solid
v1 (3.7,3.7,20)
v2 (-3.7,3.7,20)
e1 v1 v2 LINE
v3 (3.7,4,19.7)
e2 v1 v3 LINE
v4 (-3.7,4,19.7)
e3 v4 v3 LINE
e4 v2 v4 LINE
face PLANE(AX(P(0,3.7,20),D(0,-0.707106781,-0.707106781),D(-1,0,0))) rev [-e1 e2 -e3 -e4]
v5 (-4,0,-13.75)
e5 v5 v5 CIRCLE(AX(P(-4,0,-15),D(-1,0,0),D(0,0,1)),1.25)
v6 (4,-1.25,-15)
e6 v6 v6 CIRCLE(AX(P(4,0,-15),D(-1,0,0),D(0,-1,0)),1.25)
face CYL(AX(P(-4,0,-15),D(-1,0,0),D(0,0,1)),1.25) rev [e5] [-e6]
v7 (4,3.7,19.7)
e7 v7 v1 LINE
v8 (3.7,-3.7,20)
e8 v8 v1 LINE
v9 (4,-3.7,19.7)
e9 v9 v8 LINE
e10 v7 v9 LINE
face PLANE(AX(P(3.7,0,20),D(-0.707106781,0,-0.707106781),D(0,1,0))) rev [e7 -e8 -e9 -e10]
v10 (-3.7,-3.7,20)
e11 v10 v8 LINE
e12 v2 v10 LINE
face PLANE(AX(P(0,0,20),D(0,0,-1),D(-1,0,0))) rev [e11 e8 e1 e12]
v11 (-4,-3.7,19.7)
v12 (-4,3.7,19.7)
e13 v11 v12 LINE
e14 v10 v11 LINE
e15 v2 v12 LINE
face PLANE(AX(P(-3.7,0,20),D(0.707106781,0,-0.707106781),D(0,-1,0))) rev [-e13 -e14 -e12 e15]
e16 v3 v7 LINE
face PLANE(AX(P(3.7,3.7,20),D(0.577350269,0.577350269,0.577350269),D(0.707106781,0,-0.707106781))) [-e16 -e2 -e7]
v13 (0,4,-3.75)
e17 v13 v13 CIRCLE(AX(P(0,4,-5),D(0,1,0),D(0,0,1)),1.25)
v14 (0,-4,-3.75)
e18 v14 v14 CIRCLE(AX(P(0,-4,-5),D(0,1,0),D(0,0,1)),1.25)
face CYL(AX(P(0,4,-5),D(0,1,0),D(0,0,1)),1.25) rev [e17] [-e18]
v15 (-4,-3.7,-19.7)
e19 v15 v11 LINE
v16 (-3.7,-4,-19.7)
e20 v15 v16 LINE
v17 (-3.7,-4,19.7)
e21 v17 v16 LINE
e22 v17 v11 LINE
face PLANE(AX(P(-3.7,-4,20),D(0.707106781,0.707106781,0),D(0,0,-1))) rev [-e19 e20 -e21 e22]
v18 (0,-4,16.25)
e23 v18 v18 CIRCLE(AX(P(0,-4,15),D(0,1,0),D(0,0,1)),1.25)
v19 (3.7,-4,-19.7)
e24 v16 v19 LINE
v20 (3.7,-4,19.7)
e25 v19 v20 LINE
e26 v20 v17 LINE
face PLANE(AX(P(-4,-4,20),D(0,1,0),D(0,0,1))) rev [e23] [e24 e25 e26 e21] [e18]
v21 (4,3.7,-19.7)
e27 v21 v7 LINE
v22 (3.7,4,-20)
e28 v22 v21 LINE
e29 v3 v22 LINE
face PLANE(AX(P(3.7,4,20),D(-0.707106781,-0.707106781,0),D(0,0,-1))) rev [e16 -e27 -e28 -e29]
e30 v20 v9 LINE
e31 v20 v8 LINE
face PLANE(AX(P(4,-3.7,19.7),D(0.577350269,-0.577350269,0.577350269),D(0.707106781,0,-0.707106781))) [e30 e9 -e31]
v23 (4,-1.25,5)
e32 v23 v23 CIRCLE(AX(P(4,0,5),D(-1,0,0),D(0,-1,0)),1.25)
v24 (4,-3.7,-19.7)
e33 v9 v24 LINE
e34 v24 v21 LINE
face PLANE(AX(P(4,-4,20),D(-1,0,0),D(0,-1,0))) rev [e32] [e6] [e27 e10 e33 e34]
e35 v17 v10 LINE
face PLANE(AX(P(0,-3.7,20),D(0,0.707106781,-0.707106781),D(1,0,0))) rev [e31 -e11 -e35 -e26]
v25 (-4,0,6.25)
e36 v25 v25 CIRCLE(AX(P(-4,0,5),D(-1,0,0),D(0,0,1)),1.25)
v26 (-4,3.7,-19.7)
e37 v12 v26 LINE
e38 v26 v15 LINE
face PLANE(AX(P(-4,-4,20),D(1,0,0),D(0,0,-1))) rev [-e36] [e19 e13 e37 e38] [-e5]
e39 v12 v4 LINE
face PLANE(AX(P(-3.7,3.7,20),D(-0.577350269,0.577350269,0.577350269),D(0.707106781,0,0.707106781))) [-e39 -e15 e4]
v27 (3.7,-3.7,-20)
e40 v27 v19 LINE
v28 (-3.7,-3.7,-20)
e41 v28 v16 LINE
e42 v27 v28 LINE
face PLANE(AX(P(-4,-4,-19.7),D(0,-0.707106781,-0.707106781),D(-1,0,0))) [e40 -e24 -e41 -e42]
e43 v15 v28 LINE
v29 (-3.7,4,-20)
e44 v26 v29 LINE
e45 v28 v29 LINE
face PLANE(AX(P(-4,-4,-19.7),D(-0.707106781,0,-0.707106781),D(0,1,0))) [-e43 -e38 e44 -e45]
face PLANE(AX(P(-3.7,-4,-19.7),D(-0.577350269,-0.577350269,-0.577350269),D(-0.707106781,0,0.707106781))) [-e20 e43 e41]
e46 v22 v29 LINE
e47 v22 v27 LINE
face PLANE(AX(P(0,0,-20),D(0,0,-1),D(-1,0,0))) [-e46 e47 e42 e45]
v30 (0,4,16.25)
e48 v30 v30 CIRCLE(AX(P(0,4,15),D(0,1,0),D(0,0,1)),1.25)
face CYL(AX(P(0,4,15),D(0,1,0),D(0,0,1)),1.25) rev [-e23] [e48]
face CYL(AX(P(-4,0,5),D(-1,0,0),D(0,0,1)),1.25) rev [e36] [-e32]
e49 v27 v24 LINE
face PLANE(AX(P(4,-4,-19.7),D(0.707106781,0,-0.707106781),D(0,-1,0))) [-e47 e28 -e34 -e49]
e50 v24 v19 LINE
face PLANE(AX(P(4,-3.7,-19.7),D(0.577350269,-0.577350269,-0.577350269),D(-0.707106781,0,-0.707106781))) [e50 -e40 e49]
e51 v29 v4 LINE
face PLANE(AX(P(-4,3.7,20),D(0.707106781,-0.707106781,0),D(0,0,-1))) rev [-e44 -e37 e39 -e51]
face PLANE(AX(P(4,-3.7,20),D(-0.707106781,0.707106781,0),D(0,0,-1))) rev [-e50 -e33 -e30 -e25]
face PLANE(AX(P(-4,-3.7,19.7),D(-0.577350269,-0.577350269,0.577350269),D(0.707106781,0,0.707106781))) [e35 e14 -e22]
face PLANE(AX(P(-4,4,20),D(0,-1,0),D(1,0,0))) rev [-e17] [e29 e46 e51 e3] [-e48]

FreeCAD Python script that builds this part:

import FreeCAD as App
import Part
import Sketcher
from FreeCAD import Vector
Q = App.Units.Quantity


def edges_at(feature, points):
    """Names of the edges that pass closest to the given points."""
    edges = feature.Shape.Edges
    near = lambda p: min(range(len(edges)), key=lambda i: edges[i].distToShape(Part.Vertex(*p))[0])
    return sorted({f"Edge{near(p) + 1}" for p in points})


def add_polygon(sketch, points):
    """Adds a closed chain of lines whose ends are joined by coincident constraints."""
    first, n = sketch.GeometryCount, len(points)
    for a, b in zip(points, points[1:] + points[:1]):
        sketch.addGeometry(Part.LineSegment(App.Vector(*a, 0), App.Vector(*b, 0)), False)
    for i in range(n):
        sketch.addConstraint(Sketcher.Constraint("Coincident", first + i, 2, first + (i + 1) % n, 1))

doc = App.newDocument("Part")
body = doc.addObject("PartDesign::Body", "Body")

# Sketch on XY plane
sketch1 = body.newObject("Sketcher::SketchObject", "Sketch")
sketch1.AttachmentSupport = (doc.getObject("XY_Plane"), [""])
sketch1.MapMode = "FlatFace"
add_polygon(sketch1, [(-4, 4), (-4, -4), (4, -4), (4, 4)])  # lines 0-3
sketch1.addConstraint(Sketcher.Constraint("Vertical", 0))
sketch1.addConstraint(Sketcher.Constraint("Horizontal", 1))
sketch1.addConstraint(Sketcher.Constraint("Vertical", 2))
sketch1.addConstraint(Sketcher.Constraint("Horizontal", 3))
sketch1.addConstraint(Sketcher.Constraint("Symmetric", 0, 2, 2, 2, -1, 1))
sketch1.addConstraint(Sketcher.Constraint("Equal", 3, 0))
sketch1.addConstraint(Sketcher.Constraint("DistanceX", 1, 1, 1, 2, Q("8 mm")))
pad1 = body.newObject("PartDesign::Pad", "Pad")
pad1.Profile = sketch1
pad1.Length = 40
pad1.Midplane = True

# Sketch on YZ plane
sketch2 = body.newObject("Sketcher::SketchObject", "Sketch001")
sketch2.AttachmentSupport = (doc.getObject("YZ_Plane"), [""])
sketch2.MapMode = "FlatFace"
sketch2.AttachmentOffset = App.Placement(Vector(0, 0, -4), App.Rotation())
sketch2.addGeometry(Part.Circle(Vector(0, -15, 0), Vector(0, 0, 1), 1.2), False)
sketch2.addGeometry(Part.Circle(Vector(0, 5, 0), Vector(0, 0, 1), 1.2), False)
sketch2.addConstraint(Sketcher.Constraint("Equal", 0, 1))
sketch2.addConstraint(Sketcher.Constraint("PointOnObject", 0, 3, -2))
sketch2.addConstraint(Sketcher.Constraint("PointOnObject", 1, 3, -2))
sketch2.addConstraint(Sketcher.Constraint("Diameter", 0, Q("2.5 mm")))
sketch2.addConstraint(Sketcher.Constraint("DistanceY", 0, 3, -1, 1, Q("15 mm")))
sketch2.addConstraint(Sketcher.Constraint("DistanceY", -1, 1, 1, 3, Q("5 mm")))
doc.recompute()
hole = body.newObject("PartDesign::Hole", "Hole")
hole.Profile = sketch2
hole.ThreadType = "None"
hole.Diameter = 2.5
hole.DepthType = "ThroughAll"
hole.Reversed = True

# Sketch on XZ plane
sketch3 = body.newObject("Sketcher::SketchObject", "Sketch002")
sketch3.AttachmentSupport = (doc.getObject("XZ_Plane"), [""])
sketch3.MapMode = "FlatFace"
sketch3.AttachmentOffset = App.Placement(Vector(0, 0, -4), App.Rotation())
sketch3.addGeometry(Part.Circle(Vector(0, -5, 0), Vector(0, 0, 1), 1.2), False)
sketch3.addGeometry(Part.Circle(Vector(0, 15, 0), Vector(0, 0, 1), 1.2), False)
sketch3.addConstraint(Sketcher.Constraint("Equal", 0, 1))
sketch3.addConstraint(Sketcher.Constraint("PointOnObject", 0, 3, -2))
sketch3.addConstraint(Sketcher.Constraint("PointOnObject", 1, 3, -2))
sketch3.addConstraint(Sketcher.Constraint("Diameter", 0, Q("2.5 mm")))
sketch3.addConstraint(Sketcher.Constraint("DistanceY", 0, 3, -1, 1, Q("5 mm")))
sketch3.addConstraint(Sketcher.Constraint("DistanceY", -1, 1, 1, 3, Q("15 mm")))
doc.recompute()
hole2 = body.newObject("PartDesign::Hole", "Hole001")
hole2.Profile = sketch3
hole2.ThreadType = "None"
hole2.Diameter = 2.5
hole2.DepthType = "ThroughAll"
hole2.Reversed = True
doc.recompute()

chamfer = body.newObject("PartDesign::Chamfer", "Chamfer")
chamfer.Base = (hole2, edges_at(hole2, [
    (-4, 0, 20),
    (0, -4, 20),
    (4, 0, 20),
    (0, -4, -20),
    (-4, 0, -20),
    (4, 0, -20),
    (4, -4, 0),
    (-4, -4, 0),
    (-4, 4, 0),
    (4, 4, 0),
    (0, 4, 20),
]))
chamfer.Size = 0.3

doc.recompute()
